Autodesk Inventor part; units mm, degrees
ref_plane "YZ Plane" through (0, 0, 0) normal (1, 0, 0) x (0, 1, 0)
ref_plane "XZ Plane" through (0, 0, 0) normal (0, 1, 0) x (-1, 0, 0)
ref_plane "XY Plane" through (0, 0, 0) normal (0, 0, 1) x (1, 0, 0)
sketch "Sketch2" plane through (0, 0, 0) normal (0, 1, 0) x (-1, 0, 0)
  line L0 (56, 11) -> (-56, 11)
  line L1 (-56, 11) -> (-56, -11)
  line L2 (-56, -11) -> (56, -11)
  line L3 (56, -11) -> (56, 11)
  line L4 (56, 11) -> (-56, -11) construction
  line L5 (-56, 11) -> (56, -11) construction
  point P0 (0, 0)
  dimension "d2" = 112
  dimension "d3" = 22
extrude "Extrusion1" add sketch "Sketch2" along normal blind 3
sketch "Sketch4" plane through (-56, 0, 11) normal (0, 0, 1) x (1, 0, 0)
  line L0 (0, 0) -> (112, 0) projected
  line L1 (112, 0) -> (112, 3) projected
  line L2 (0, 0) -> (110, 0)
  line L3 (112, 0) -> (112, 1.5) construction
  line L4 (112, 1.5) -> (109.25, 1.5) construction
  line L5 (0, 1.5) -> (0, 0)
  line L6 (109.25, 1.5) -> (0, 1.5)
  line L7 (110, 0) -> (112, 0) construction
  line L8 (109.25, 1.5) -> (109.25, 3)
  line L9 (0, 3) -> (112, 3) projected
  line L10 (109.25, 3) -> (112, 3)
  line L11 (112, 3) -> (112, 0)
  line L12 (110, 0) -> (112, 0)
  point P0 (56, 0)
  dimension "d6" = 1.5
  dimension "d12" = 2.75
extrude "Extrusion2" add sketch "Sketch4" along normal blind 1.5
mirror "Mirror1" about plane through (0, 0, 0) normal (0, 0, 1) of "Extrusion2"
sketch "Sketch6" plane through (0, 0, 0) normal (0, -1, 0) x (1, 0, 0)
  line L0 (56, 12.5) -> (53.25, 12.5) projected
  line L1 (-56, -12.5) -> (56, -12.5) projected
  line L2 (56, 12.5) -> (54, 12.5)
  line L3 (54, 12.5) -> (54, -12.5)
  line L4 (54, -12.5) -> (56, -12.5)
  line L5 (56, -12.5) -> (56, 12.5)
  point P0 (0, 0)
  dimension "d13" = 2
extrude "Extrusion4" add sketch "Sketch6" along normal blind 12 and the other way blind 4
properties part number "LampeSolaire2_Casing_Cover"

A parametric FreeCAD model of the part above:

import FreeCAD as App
import Part
import Sketcher

V = App.Vector
Q = App.Units.Quantity


def add_polygon(sketch, points):
    """Adds a closed chain of lines whose ends are joined by coincident constraints."""
    first, n = sketch.GeometryCount, len(points)
    for a, b in zip(points, points[1:] + points[:1]):
        sketch.addGeometry(Part.LineSegment(App.Vector(*a, 0), App.Vector(*b, 0)), False)
    for i in range(n):
        sketch.addConstraint(Sketcher.Constraint("Coincident", first + i, 2, first + (i + 1) % n, 1))

doc = App.newDocument("Part")
body = doc.addObject("PartDesign::Body", "Body")

# Sketch on XZ plane
sketch1 = doc.addObject("Sketcher::SketchObject", "Sketch")
body.addObject(sketch1)
sketch1.AttachmentSupport = (doc.XZ_Plane, [""])
sketch1.MapMode = "FlatFace"
add_polygon(sketch1, [(-56, -11), (-56, 11), (56, 11), (56, -11)])  # lines 0-3
sketch1.addConstraint(Sketcher.Constraint("Vertical", 0))
sketch1.addConstraint(Sketcher.Constraint("Horizontal", 1))
sketch1.addConstraint(Sketcher.Constraint("Vertical", 2))
sketch1.addConstraint(Sketcher.Constraint("Horizontal", 3))
sketch1.addConstraint(Sketcher.Constraint("Symmetric", 0, 2, 2, 2, -1, 1))
sketch1.addConstraint(Sketcher.Constraint("DistanceX", 1, 1, 1, 2, Q("112 mm")))
sketch1.addConstraint(Sketcher.Constraint("DistanceY", 0, 1, 0, 2, Q("22 mm")))
pad1 = doc.addObject("PartDesign::Pad", "Pad")
body.addObject(pad1)
pad1.Profile = sketch1
pad1.Length = 3
pad1.Reversed = True

# Sketch on XY plane
sketch2 = doc.addObject("Sketcher::SketchObject", "Sketch001")
body.addObject(sketch2)
sketch2.AttachmentSupport = (doc.XY_Plane, [""])
sketch2.MapMode = "FlatFace"
sketch2.AttachmentOffset = App.Placement(V(0, 0, 11), App.Rotation())
add_polygon(sketch2, [(-56, 1.5), (-56, 0), (56, 0), (56, 3), (53.2, 3), (53.2, 1.5)])  # lines 0-5
sketch2.addConstraint(Sketcher.Constraint("Vertical", 0))
sketch2.addConstraint(Sketcher.Constraint("Horizontal", 1))
sketch2.addConstraint(Sketcher.Constraint("Vertical", 2))
sketch2.addConstraint(Sketcher.Constraint("Horizontal", 3))
sketch2.addConstraint(Sketcher.Constraint("Vertical", 4))
sketch2.addConstraint(Sketcher.Constraint("Horizontal", 5))
sketch2.addConstraint(Sketcher.Constraint("Symmetric", 0, 2, 1, 2, -1, 1))
sketch2.addConstraint(Sketcher.Constraint("Equal", 0, 4))
sketch2.addConstraint(Sketcher.Constraint("DistanceY", 0, 2, 0, 1, Q("1.5 mm")))
sketch2.addConstraint(Sketcher.Constraint("DistanceX", 3, 2, 3, 1, Q("2.75 mm")))
sketch2.addConstraint(Sketcher.Constraint("DistanceX", 1, 1, 1, 2, Q("112 mm")))
pad2 = doc.addObject("PartDesign::Pad", "Pad001")
body.addObject(pad2)
pad2.Profile = sketch2
pad2.Length = 1.5
doc.recompute()

mirrored = doc.addObject("PartDesign::Mirrored", "Mirrored")
body.addObject(mirrored)
mirrored.Originals = [pad2]
mirrored.MirrorPlane = (doc.XY_Plane, [""])
body.Tip = mirrored

# Sketch on XZ plane
sketch3 = doc.addObject("Sketcher::SketchObject", "Sketch002")
body.addObject(sketch3)
sketch3.AttachmentSupport = (doc.XZ_Plane, [""])
sketch3.MapMode = "FlatFace"
add_polygon(sketch3, [(56, -12.5), (56, 12.5), (54, 12.5), (54, -12.5)])  # lines 0-3
sketch3.addConstraint(Sketcher.Constraint("Vertical", 0))
sketch3.addConstraint(Sketcher.Constraint("Horizontal", 1))
sketch3.addConstraint(Sketcher.Constraint("Vertical", 2))
sketch3.addConstraint(Sketcher.Constraint("Horizontal", 3))
sketch3.addConstraint(Sketcher.Constraint("DistanceX", 1, 2, 1, 1, Q("2 mm")))
sketch3.addConstraint(Sketcher.Constraint("DistanceY", 0, 1, 0, 2, Q("25 mm")))
sketch3.addConstraint(Sketcher.Constraint("DistanceX", -1, 1, 0, 2, Q("56 mm")))
sketch3.addConstraint(Sketcher.Constraint("DistanceY", -1, 1, 0, 2, Q("12.5 mm")))
pad3 = doc.addObject("PartDesign::Pad", "Pad002")
body.addObject(pad3)
pad3.Profile = sketch3
pad3.Type = "TwoLengths"
pad3.Length = 12
pad3.Length2 = 4

doc.recompute()
